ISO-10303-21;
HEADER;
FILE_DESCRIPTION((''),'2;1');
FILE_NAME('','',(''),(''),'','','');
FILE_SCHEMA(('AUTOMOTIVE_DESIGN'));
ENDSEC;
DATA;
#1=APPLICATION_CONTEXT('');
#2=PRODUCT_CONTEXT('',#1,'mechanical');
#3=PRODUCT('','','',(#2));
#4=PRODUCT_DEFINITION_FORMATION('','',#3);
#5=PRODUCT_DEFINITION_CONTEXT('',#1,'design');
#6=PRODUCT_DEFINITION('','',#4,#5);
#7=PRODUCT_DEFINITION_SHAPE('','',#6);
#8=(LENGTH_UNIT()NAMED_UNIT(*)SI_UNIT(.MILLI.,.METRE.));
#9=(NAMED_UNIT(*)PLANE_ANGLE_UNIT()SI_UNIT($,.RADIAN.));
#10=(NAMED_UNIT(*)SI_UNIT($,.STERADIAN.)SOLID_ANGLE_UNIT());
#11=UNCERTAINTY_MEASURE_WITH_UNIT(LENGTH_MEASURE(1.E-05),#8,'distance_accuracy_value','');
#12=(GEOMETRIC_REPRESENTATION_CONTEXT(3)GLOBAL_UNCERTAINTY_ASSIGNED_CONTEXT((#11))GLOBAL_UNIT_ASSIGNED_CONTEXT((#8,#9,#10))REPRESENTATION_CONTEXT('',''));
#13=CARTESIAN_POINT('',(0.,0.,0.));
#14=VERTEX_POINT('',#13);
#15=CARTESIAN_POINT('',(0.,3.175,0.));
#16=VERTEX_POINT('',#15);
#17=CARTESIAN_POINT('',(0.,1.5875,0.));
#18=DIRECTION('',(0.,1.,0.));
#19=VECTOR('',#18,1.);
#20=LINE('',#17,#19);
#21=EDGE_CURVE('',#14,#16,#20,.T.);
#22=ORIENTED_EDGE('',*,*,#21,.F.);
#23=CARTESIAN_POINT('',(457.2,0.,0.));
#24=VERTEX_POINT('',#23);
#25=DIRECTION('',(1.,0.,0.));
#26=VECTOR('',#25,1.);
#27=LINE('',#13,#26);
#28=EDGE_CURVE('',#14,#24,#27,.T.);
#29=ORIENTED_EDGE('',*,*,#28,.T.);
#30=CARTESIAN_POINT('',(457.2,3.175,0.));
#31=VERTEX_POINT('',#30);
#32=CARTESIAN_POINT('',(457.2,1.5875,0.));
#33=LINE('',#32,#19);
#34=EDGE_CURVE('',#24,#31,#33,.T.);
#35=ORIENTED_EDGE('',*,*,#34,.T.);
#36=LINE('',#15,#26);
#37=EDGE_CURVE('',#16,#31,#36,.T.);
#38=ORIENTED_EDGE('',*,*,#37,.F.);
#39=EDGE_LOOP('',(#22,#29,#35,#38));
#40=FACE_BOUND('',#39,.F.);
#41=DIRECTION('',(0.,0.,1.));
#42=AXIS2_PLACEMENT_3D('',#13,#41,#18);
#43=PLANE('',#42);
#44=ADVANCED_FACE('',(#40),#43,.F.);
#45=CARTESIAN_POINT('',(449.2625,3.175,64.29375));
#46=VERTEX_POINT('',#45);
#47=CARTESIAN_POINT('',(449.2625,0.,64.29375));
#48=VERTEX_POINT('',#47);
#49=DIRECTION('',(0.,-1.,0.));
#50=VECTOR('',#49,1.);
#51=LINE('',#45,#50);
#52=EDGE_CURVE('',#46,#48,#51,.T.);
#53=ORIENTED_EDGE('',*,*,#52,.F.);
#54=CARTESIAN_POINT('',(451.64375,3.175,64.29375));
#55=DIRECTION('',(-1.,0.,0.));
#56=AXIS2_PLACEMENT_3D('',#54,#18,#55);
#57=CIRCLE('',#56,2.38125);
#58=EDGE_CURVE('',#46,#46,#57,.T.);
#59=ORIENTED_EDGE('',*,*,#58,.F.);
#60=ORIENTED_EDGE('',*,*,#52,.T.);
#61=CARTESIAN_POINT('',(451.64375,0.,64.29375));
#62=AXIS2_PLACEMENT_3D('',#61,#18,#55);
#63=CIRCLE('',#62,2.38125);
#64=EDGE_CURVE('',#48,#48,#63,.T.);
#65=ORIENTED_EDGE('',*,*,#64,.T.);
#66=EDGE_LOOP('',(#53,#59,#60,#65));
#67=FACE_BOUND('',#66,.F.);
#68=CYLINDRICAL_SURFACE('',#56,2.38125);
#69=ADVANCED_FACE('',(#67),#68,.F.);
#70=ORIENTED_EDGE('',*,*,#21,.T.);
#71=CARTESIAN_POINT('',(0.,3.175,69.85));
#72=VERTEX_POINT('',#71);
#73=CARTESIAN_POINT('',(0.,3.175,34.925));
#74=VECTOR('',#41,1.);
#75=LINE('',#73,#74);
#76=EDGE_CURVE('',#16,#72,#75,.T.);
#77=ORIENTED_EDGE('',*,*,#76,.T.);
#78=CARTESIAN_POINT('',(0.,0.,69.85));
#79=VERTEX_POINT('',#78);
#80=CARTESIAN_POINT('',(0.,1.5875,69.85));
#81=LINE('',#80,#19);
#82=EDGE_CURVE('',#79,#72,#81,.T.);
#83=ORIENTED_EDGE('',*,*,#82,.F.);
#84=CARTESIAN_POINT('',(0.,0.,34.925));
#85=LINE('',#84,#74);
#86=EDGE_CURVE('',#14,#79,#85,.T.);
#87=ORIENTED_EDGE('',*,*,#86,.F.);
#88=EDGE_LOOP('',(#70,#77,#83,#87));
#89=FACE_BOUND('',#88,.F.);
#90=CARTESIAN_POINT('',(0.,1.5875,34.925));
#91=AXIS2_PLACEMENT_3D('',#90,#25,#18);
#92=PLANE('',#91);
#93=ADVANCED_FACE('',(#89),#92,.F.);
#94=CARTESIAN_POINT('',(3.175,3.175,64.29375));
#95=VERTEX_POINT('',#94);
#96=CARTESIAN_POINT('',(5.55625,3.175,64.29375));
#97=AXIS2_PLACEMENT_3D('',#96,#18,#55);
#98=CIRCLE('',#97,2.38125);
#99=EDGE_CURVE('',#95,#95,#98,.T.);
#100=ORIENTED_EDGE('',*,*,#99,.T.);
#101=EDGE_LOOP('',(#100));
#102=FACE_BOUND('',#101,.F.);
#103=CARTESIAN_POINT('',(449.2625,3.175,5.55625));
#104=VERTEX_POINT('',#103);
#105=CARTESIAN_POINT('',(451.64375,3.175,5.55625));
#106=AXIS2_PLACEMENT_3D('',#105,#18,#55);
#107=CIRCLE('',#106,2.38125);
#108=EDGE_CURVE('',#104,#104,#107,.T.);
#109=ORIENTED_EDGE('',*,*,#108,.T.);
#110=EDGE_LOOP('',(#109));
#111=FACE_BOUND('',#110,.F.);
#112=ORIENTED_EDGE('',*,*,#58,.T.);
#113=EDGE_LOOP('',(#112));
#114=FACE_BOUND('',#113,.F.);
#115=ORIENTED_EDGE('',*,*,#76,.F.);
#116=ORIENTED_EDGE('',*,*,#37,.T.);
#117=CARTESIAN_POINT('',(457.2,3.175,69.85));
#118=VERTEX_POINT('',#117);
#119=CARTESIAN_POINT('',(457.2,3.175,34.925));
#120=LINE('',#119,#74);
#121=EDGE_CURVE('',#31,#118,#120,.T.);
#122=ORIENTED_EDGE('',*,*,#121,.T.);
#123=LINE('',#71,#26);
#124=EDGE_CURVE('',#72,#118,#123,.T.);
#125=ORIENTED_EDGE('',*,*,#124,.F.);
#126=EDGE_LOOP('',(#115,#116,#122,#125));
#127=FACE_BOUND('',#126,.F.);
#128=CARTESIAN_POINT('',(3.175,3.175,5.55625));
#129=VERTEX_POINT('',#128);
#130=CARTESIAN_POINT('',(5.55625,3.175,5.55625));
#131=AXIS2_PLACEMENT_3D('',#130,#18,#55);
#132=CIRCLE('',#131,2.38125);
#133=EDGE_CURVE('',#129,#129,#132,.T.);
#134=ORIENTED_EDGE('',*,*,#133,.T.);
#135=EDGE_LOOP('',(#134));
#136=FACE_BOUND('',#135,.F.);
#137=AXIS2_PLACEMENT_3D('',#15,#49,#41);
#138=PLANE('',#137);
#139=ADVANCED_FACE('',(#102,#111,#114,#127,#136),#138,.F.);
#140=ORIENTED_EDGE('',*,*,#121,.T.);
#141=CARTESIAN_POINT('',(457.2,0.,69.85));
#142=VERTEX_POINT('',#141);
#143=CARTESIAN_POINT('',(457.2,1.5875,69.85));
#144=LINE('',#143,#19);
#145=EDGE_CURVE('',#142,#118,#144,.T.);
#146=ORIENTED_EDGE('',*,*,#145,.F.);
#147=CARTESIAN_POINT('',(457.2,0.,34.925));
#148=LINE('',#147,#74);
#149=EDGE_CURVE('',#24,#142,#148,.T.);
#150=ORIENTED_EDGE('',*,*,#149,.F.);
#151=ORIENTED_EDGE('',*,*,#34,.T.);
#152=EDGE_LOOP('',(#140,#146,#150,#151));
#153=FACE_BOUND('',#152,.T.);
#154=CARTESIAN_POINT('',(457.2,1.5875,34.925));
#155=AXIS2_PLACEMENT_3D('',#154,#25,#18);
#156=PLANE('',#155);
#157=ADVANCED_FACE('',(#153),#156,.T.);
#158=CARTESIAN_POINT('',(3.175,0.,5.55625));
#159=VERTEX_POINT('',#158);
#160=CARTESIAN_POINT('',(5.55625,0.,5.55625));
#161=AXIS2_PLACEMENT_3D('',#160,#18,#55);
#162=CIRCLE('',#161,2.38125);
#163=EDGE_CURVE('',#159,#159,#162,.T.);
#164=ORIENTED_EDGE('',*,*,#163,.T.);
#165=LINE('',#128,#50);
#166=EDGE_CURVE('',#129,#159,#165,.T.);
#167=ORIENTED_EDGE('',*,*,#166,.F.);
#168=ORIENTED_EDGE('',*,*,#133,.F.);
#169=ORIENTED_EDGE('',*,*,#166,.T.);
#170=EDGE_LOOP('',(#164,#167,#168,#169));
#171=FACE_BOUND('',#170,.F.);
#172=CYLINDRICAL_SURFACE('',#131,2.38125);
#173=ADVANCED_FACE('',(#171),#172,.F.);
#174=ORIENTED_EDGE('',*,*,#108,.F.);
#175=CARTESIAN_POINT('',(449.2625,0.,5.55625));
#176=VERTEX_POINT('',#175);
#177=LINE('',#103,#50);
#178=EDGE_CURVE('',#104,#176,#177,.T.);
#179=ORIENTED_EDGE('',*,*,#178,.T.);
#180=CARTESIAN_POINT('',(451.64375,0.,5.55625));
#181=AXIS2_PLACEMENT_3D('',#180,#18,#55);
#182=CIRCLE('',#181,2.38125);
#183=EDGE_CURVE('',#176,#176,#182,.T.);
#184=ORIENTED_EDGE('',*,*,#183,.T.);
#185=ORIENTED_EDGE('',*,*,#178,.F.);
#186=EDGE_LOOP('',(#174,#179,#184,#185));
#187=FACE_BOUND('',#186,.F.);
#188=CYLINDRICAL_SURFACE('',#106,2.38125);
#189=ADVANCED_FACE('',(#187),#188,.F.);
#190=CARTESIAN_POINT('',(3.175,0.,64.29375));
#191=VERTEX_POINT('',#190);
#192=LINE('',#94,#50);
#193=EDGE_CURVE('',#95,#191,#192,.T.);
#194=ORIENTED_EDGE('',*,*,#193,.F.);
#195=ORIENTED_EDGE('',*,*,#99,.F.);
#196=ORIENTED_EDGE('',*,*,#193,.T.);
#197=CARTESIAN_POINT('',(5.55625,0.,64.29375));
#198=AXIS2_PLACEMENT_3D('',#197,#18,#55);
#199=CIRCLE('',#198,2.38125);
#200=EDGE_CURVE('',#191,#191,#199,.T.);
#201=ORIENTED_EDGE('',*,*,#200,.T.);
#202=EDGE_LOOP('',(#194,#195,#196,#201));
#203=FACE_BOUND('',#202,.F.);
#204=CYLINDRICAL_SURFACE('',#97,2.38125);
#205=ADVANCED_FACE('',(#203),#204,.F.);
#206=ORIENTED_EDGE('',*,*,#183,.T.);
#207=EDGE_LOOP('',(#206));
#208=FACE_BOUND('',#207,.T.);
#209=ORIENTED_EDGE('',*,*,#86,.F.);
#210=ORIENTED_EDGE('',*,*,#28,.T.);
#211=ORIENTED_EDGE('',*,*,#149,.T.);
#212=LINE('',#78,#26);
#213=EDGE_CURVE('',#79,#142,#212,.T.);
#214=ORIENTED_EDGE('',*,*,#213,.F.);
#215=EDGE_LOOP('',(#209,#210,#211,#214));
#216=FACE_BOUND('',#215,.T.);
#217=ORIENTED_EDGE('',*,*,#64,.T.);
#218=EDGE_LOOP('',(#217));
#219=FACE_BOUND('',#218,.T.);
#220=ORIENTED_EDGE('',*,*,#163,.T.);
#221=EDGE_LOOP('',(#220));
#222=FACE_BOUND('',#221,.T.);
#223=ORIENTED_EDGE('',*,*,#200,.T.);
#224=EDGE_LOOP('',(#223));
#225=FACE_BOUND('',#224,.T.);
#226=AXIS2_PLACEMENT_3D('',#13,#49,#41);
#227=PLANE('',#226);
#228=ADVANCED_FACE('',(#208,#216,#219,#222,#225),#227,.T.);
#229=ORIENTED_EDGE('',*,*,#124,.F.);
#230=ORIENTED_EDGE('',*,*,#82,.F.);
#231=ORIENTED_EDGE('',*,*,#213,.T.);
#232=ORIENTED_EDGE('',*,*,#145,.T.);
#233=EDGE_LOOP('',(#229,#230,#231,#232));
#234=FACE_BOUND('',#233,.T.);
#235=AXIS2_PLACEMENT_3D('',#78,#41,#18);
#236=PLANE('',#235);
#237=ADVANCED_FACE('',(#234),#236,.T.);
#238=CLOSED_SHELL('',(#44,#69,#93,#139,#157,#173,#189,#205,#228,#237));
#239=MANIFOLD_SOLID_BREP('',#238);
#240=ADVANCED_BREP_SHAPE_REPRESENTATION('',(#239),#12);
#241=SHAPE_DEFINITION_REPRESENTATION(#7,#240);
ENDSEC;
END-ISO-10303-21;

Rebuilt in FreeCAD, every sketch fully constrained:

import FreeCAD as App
import Part
import Sketcher
from FreeCAD import Vector
Q = App.Units.Quantity

doc = App.newDocument("Part")
body = doc.addObject("PartDesign::Body", "Body")

# Sketch on YZ plane
sketch1 = body.newObject("Sketcher::SketchObject", "Sketch")
sketch1.AttachmentSupport = (doc.getObject("YZ_Plane"), [""])
sketch1.MapMode = "FlatFace"
sketch1.addGeometry([
    Part.LineSegment(Vector(0, 69.8, 0), Vector(0, 0, 0)),
    Part.LineSegment(Vector(0, 0, 0), Vector(3.2, 0, 0)),
    Part.LineSegment(Vector(3.2, 0, 0), Vector(3.2, 69.8, 0)),
    Part.LineSegment(Vector(3.2, 69.8, 0), Vector(0, 69.8, 0)),
], False)
sketch1.addConstraint([
    Sketcher.Constraint("Coincident", 0, 2, 1, 1),
    Sketcher.Constraint("Coincident", 1, 2, 2, 1),
    Sketcher.Constraint("Coincident", 2, 2, 3, 1),
    Sketcher.Constraint("Coincident", 3, 2, 0, 1),
    Sketcher.Constraint("Vertical", 0),
    Sketcher.Constraint("Horizontal", 1),
    Sketcher.Constraint("Vertical", 2),
    Sketcher.Constraint("Horizontal", 3),
    Sketcher.Constraint("Coincident", 0, 2, -1, 1),
    Sketcher.Constraint("DistanceY", 0, 2, 0, 1, Q("2.75 in")),
    Sketcher.Constraint("DistanceX", 1, 1, 1, 2, Q("0.125 in")),
])
pad1 = body.newObject("PartDesign::Pad", "Pad")
pad1.Profile = sketch1
pad1.Length = Q("18 in")

# Sketch on XZ plane
sketch2 = body.newObject("Sketcher::SketchObject", "Sketch001")
sketch2.AttachmentSupport = (doc.getObject("XZ_Plane"), [""])
sketch2.MapMode = "FlatFace"
sketch2.AttachmentOffset = App.Placement(Vector(0, 0, -0.125 * 25.4), App.Rotation())
sketch2.addGeometry([
    Part.Circle(Vector(5.6, 64.3, 0), Vector(0, 0, 1), 2.4),
    Part.Circle(Vector(5.6, 5.6, 0), Vector(0, 0, 1), 2.4),
    Part.Circle(Vector(451.6, 64.3, 0), Vector(0, 0, 1), 2.4),
    Part.Circle(Vector(451.6, 5.6, 0), Vector(0, 0, 1), 2.4),
], False)
sketch2.addConstraint([
    Sketcher.Constraint("Equal", 0, 1),
    Sketcher.Constraint("Equal", 1, 2),
    Sketcher.Constraint("Equal", 2, 3),
    Sketcher.Constraint("Horizontal", 0, 3, 2, 3),
    Sketcher.Constraint("Horizontal", 1, 3, 3, 3),
    Sketcher.Constraint("Vertical", 0, 3, 1, 3),
    Sketcher.Constraint("Vertical", 2, 3, 3, 3),
    Sketcher.Constraint("Diameter", 0, Q("0.1875 in")),
    Sketcher.Constraint("DistanceX", -1, 1, 0, 3, Q("0.21875 in")),
    Sketcher.Constraint("DistanceY", -1, 1, 0, 3, Q("2.53125 in")),
    Sketcher.Constraint("DistanceY", -1, 1, 1, 3, Q("0.21875 in")),
    Sketcher.Constraint("DistanceX", -1, 1, 2, 3, Q("17.78125 in")),
])
pocket1 = body.newObject("PartDesign::Pocket", "Pocket")
pocket1.Profile = sketch2
pocket1.Type = "ThroughAll"
pocket1.Reversed = True

doc.recompute()
